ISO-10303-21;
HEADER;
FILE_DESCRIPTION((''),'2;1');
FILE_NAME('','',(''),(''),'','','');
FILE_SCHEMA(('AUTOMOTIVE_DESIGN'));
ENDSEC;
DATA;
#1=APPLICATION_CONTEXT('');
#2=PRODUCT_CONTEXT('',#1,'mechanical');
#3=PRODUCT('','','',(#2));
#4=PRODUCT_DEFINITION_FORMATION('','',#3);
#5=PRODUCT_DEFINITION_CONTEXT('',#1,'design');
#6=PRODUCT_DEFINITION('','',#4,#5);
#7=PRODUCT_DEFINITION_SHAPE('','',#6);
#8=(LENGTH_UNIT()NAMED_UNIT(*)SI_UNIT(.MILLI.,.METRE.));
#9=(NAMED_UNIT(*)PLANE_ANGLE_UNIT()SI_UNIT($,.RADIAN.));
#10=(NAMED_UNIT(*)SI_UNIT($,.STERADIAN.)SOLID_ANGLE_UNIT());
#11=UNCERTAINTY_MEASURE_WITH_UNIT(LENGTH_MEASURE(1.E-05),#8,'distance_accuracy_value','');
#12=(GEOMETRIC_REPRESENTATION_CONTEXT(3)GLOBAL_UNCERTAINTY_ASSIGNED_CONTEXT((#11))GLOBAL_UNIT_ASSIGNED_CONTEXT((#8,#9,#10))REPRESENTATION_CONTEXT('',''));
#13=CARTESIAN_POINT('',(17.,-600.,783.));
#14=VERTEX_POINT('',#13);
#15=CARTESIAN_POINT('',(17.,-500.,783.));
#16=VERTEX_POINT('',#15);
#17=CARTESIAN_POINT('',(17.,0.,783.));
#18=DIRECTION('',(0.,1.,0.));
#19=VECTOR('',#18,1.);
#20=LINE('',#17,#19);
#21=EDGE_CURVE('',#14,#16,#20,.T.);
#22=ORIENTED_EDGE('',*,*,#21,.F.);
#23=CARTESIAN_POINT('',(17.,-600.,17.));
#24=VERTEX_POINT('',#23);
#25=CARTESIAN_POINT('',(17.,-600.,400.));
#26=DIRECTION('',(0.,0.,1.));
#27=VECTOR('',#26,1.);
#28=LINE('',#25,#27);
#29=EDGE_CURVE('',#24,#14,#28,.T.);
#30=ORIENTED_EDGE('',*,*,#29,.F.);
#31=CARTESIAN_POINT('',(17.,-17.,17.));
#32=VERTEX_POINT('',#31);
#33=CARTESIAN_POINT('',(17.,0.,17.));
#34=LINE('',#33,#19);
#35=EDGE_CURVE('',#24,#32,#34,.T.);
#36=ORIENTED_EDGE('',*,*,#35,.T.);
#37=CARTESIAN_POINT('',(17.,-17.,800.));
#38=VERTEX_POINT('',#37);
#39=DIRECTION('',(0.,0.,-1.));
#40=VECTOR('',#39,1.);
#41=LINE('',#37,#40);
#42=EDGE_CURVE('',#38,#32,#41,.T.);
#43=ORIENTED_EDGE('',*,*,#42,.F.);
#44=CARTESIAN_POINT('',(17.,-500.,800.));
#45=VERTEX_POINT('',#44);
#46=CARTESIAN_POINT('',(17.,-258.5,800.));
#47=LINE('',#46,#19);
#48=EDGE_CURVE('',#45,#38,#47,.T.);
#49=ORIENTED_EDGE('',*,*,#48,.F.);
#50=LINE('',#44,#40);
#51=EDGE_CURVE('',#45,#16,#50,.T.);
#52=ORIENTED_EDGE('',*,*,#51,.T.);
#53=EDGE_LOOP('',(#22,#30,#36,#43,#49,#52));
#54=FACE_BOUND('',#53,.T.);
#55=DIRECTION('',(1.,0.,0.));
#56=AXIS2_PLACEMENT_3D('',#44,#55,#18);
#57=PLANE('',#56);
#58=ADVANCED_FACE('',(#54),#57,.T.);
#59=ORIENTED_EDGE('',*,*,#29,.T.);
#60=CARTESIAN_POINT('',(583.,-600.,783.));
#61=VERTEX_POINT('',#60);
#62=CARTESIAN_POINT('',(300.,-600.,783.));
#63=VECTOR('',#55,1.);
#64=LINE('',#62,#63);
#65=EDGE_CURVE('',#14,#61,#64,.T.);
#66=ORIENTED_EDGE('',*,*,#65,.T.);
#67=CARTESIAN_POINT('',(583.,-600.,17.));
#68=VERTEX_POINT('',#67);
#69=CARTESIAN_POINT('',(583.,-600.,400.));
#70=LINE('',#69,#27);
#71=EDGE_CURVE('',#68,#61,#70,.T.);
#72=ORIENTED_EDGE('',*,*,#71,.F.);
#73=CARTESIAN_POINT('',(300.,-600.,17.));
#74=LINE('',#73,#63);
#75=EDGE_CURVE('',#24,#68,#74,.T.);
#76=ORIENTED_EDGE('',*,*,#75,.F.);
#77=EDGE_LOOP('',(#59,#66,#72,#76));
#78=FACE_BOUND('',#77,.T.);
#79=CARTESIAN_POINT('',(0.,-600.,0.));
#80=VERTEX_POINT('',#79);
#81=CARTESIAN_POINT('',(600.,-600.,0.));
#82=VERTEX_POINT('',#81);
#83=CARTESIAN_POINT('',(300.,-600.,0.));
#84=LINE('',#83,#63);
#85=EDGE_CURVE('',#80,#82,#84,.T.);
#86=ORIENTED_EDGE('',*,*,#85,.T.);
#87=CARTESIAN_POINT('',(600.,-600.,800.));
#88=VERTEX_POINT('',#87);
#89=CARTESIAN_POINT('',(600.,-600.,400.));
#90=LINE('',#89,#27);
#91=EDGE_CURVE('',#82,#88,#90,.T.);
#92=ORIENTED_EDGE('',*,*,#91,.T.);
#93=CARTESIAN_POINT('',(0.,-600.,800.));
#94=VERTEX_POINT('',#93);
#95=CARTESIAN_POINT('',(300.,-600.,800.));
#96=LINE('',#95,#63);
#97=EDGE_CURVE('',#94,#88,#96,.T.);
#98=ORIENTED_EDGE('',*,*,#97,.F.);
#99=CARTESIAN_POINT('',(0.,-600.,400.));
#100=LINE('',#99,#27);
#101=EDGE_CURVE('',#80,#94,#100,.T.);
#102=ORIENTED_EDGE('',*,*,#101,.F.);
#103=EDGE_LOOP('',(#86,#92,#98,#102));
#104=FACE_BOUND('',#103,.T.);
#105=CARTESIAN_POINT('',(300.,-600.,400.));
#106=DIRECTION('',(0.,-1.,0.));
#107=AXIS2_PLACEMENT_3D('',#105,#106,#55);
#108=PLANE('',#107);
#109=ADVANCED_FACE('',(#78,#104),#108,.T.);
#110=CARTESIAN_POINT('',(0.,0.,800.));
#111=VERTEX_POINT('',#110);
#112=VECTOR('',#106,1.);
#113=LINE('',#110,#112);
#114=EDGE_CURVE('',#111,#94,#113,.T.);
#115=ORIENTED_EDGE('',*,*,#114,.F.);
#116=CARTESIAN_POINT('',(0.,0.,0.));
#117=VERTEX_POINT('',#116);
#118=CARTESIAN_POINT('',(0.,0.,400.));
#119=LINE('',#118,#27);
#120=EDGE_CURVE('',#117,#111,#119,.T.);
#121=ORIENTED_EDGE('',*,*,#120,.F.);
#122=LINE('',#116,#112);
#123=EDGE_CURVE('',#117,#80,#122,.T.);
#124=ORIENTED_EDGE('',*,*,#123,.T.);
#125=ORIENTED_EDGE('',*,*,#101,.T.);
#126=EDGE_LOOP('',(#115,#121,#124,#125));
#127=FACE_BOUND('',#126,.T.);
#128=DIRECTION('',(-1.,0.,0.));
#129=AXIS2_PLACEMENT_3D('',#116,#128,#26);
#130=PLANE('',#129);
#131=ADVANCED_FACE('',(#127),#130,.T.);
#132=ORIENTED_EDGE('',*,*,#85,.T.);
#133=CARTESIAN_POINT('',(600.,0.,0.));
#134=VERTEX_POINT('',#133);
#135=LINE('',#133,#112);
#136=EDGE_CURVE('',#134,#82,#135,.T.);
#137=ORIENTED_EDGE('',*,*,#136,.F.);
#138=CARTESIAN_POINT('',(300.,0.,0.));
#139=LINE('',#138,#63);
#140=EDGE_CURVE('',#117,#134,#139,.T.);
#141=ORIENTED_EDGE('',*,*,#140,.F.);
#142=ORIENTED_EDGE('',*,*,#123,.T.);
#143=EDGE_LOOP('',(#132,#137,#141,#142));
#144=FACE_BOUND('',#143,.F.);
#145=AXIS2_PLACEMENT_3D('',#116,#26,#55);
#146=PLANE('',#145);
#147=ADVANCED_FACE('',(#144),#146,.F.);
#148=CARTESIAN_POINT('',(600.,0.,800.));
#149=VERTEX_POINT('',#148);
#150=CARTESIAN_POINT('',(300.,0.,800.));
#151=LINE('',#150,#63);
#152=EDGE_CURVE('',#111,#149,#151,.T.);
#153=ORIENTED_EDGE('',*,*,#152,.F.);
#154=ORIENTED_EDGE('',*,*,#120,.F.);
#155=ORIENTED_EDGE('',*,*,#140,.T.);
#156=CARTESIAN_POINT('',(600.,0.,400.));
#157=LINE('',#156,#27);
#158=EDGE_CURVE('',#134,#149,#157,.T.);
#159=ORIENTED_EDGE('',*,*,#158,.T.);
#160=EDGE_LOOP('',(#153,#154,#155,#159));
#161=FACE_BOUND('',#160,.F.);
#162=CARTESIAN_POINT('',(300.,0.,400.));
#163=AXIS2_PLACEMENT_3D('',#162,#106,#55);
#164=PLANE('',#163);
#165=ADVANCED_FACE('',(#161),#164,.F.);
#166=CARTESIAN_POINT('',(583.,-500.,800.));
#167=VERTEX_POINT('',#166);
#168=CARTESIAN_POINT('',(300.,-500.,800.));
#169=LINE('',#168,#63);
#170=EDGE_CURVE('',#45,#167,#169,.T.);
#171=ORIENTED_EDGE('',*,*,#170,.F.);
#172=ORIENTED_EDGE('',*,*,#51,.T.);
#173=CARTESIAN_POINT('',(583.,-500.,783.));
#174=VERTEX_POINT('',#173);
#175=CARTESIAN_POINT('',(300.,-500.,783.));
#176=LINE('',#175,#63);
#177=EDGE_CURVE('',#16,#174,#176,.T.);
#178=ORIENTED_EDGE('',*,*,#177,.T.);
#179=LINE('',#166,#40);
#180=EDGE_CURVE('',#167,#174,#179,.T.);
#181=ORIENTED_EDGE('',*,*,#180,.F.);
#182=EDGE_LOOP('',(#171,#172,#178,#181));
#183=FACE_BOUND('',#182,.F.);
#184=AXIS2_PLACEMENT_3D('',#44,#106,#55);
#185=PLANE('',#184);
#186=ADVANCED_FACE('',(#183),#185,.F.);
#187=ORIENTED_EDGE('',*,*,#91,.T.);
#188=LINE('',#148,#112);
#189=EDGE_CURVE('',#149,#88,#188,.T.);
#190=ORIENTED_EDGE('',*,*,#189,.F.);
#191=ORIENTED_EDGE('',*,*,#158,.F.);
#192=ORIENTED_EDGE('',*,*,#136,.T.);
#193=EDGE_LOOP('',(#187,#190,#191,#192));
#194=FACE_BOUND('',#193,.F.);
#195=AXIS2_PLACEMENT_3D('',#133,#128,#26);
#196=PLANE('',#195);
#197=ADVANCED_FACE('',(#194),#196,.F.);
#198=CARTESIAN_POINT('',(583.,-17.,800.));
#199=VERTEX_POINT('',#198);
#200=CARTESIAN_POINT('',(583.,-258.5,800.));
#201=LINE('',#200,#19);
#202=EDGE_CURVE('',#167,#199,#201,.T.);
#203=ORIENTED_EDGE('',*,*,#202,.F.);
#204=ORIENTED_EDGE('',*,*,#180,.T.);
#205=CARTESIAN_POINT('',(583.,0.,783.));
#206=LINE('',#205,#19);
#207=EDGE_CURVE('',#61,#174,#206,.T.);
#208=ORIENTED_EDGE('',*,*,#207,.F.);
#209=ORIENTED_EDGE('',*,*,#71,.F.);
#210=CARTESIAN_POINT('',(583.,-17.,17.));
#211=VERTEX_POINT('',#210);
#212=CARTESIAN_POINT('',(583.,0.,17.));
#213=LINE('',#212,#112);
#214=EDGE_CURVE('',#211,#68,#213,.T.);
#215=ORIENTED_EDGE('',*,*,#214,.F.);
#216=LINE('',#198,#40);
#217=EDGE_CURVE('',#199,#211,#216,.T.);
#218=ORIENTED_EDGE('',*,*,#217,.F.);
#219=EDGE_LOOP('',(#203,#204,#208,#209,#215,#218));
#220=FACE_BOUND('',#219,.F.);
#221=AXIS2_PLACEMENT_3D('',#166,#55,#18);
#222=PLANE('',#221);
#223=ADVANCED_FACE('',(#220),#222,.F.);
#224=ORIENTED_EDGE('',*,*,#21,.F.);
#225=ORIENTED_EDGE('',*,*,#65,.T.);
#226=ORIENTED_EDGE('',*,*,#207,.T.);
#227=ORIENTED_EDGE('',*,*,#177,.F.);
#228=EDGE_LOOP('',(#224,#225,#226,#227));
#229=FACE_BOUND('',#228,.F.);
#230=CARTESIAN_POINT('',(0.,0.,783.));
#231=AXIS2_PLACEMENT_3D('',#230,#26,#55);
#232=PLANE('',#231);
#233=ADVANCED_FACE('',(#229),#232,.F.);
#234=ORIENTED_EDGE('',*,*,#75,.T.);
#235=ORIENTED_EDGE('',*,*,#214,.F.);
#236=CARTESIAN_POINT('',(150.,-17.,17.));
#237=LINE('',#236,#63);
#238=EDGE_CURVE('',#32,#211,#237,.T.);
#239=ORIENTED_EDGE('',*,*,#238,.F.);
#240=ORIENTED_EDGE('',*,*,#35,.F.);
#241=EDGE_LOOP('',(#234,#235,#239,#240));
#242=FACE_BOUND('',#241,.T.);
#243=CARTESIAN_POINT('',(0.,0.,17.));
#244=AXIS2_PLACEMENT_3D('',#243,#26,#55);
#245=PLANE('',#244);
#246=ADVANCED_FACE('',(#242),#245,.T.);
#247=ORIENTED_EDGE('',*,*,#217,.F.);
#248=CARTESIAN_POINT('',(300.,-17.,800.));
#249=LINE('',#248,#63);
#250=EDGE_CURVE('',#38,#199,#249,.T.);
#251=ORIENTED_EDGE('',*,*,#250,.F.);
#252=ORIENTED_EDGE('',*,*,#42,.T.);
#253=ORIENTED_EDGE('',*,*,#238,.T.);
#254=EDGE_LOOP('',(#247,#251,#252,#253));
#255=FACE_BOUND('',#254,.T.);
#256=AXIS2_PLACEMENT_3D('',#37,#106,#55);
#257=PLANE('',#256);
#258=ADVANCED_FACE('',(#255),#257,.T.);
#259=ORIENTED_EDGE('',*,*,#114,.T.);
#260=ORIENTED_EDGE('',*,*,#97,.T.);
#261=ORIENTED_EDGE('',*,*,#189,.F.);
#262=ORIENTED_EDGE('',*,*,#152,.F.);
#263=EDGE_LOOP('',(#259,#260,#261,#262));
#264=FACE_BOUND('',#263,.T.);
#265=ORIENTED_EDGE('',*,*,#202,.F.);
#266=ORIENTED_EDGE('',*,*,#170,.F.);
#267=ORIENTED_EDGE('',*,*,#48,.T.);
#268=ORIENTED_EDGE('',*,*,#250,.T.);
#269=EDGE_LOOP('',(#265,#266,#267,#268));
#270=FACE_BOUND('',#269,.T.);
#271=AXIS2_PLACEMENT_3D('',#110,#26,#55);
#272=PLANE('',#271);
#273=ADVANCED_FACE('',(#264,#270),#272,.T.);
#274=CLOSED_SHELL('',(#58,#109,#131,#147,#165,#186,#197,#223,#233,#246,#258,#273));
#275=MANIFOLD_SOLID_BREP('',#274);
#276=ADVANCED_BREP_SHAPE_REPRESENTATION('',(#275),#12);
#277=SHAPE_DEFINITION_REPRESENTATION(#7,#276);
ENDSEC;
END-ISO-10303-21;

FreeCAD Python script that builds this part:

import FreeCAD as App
import Part
import Sketcher

V = App.Vector


def faces_at(feature, points):
    """Names of the faces that lie closest to the given points."""
    faces = feature.Shape.Faces
    near = lambda p: min(range(len(faces)), key=lambda i: faces[i].distToShape(Part.Vertex(*p))[0])
    return sorted({f"Face{near(p) + 1}" for p in points})


def add_polygon(sketch, points):
    """Adds a closed chain of lines whose ends are joined by coincident constraints."""
    first, n = sketch.GeometryCount, len(points)
    for a, b in zip(points, points[1:] + points[:1]):
        sketch.addGeometry(Part.LineSegment(App.Vector(*a, 0), App.Vector(*b, 0)), False)
    for i in range(n):
        sketch.addConstraint(Sketcher.Constraint("Coincident", first + i, 2, first + (i + 1) % n, 1))

doc = App.newDocument("Part")
body = doc.addObject("PartDesign::Body", "Body")

# Sketch on XZ plane
sketch1 = body.newObject("Sketcher::SketchObject", "Sketch")
sketch1.AttachmentSupport = (doc.getObject("XZ_Plane"), [""])
sketch1.MapMode = "FlatFace"
add_polygon(sketch1, [(0, 800), (0, 0), (600, 0), (600, 800)])  # lines 0-3
sketch1.addConstraint(Sketcher.Constraint("Vertical", 0))
sketch1.addConstraint(Sketcher.Constraint("Horizontal", 1))
sketch1.addConstraint(Sketcher.Constraint("Vertical", 2))
sketch1.addConstraint(Sketcher.Constraint("Horizontal", 3))
sketch1.addConstraint(Sketcher.Constraint("Coincident", 0, 2, -1, 1))
sketch1.addConstraint(Sketcher.Constraint("DistanceX", 1, 1, 1, 2, 600.0))
sketch1.addConstraint(Sketcher.Constraint("DistanceY", 0, 2, 0, 1, 800.0))
pad1 = body.newObject("PartDesign::Pad", "Pad")
pad1.Profile = sketch1
pad1.Length = 600
doc.recompute()

thickness = body.newObject("PartDesign::Thickness", "Thickness")
thickness.Base = (pad1, faces_at(pad1, [(300, -600, 400)]))
thickness.Value = 17
thickness.Reversed = True
thickness.Join = "Arc"

# Sketch on XY plane
sketch2 = body.newObject("Sketcher::SketchObject", "Sketch001")
sketch2.AttachmentSupport = (doc.getObject("XY_Plane"), [""])
sketch2.MapMode = "FlatFace"
sketch2.AttachmentOffset = App.Placement(V(0, 0, 800), App.Rotation())
add_polygon(sketch2, [(17, -17), (17, -500), (583, -500), (583, -17)])  # lines 0-3
sketch2.addConstraint(Sketcher.Constraint("Vertical", 0))
sketch2.addConstraint(Sketcher.Constraint("Horizontal", 1))
sketch2.addConstraint(Sketcher.Constraint("Vertical", 2))
sketch2.addConstraint(Sketcher.Constraint("Horizontal", 3))
sketch2.addConstraint(Sketcher.Constraint("DistanceX", 1, 1, 1, 2, 566.0))
sketch2.addConstraint(Sketcher.Constraint("DistanceY", 0, 2, 0, 1, 483.0))
sketch2.addConstraint(Sketcher.Constraint("DistanceX", -1, 1, 0, 2, 17.0))
sketch2.addConstraint(Sketcher.Constraint("DistanceY", 0, 2, -1, 1, 500.0))
pocket1 = body.newObject("PartDesign::Pocket", "Pocket")
pocket1.Profile = sketch2
pocket1.Length = 17

doc.recompute()
